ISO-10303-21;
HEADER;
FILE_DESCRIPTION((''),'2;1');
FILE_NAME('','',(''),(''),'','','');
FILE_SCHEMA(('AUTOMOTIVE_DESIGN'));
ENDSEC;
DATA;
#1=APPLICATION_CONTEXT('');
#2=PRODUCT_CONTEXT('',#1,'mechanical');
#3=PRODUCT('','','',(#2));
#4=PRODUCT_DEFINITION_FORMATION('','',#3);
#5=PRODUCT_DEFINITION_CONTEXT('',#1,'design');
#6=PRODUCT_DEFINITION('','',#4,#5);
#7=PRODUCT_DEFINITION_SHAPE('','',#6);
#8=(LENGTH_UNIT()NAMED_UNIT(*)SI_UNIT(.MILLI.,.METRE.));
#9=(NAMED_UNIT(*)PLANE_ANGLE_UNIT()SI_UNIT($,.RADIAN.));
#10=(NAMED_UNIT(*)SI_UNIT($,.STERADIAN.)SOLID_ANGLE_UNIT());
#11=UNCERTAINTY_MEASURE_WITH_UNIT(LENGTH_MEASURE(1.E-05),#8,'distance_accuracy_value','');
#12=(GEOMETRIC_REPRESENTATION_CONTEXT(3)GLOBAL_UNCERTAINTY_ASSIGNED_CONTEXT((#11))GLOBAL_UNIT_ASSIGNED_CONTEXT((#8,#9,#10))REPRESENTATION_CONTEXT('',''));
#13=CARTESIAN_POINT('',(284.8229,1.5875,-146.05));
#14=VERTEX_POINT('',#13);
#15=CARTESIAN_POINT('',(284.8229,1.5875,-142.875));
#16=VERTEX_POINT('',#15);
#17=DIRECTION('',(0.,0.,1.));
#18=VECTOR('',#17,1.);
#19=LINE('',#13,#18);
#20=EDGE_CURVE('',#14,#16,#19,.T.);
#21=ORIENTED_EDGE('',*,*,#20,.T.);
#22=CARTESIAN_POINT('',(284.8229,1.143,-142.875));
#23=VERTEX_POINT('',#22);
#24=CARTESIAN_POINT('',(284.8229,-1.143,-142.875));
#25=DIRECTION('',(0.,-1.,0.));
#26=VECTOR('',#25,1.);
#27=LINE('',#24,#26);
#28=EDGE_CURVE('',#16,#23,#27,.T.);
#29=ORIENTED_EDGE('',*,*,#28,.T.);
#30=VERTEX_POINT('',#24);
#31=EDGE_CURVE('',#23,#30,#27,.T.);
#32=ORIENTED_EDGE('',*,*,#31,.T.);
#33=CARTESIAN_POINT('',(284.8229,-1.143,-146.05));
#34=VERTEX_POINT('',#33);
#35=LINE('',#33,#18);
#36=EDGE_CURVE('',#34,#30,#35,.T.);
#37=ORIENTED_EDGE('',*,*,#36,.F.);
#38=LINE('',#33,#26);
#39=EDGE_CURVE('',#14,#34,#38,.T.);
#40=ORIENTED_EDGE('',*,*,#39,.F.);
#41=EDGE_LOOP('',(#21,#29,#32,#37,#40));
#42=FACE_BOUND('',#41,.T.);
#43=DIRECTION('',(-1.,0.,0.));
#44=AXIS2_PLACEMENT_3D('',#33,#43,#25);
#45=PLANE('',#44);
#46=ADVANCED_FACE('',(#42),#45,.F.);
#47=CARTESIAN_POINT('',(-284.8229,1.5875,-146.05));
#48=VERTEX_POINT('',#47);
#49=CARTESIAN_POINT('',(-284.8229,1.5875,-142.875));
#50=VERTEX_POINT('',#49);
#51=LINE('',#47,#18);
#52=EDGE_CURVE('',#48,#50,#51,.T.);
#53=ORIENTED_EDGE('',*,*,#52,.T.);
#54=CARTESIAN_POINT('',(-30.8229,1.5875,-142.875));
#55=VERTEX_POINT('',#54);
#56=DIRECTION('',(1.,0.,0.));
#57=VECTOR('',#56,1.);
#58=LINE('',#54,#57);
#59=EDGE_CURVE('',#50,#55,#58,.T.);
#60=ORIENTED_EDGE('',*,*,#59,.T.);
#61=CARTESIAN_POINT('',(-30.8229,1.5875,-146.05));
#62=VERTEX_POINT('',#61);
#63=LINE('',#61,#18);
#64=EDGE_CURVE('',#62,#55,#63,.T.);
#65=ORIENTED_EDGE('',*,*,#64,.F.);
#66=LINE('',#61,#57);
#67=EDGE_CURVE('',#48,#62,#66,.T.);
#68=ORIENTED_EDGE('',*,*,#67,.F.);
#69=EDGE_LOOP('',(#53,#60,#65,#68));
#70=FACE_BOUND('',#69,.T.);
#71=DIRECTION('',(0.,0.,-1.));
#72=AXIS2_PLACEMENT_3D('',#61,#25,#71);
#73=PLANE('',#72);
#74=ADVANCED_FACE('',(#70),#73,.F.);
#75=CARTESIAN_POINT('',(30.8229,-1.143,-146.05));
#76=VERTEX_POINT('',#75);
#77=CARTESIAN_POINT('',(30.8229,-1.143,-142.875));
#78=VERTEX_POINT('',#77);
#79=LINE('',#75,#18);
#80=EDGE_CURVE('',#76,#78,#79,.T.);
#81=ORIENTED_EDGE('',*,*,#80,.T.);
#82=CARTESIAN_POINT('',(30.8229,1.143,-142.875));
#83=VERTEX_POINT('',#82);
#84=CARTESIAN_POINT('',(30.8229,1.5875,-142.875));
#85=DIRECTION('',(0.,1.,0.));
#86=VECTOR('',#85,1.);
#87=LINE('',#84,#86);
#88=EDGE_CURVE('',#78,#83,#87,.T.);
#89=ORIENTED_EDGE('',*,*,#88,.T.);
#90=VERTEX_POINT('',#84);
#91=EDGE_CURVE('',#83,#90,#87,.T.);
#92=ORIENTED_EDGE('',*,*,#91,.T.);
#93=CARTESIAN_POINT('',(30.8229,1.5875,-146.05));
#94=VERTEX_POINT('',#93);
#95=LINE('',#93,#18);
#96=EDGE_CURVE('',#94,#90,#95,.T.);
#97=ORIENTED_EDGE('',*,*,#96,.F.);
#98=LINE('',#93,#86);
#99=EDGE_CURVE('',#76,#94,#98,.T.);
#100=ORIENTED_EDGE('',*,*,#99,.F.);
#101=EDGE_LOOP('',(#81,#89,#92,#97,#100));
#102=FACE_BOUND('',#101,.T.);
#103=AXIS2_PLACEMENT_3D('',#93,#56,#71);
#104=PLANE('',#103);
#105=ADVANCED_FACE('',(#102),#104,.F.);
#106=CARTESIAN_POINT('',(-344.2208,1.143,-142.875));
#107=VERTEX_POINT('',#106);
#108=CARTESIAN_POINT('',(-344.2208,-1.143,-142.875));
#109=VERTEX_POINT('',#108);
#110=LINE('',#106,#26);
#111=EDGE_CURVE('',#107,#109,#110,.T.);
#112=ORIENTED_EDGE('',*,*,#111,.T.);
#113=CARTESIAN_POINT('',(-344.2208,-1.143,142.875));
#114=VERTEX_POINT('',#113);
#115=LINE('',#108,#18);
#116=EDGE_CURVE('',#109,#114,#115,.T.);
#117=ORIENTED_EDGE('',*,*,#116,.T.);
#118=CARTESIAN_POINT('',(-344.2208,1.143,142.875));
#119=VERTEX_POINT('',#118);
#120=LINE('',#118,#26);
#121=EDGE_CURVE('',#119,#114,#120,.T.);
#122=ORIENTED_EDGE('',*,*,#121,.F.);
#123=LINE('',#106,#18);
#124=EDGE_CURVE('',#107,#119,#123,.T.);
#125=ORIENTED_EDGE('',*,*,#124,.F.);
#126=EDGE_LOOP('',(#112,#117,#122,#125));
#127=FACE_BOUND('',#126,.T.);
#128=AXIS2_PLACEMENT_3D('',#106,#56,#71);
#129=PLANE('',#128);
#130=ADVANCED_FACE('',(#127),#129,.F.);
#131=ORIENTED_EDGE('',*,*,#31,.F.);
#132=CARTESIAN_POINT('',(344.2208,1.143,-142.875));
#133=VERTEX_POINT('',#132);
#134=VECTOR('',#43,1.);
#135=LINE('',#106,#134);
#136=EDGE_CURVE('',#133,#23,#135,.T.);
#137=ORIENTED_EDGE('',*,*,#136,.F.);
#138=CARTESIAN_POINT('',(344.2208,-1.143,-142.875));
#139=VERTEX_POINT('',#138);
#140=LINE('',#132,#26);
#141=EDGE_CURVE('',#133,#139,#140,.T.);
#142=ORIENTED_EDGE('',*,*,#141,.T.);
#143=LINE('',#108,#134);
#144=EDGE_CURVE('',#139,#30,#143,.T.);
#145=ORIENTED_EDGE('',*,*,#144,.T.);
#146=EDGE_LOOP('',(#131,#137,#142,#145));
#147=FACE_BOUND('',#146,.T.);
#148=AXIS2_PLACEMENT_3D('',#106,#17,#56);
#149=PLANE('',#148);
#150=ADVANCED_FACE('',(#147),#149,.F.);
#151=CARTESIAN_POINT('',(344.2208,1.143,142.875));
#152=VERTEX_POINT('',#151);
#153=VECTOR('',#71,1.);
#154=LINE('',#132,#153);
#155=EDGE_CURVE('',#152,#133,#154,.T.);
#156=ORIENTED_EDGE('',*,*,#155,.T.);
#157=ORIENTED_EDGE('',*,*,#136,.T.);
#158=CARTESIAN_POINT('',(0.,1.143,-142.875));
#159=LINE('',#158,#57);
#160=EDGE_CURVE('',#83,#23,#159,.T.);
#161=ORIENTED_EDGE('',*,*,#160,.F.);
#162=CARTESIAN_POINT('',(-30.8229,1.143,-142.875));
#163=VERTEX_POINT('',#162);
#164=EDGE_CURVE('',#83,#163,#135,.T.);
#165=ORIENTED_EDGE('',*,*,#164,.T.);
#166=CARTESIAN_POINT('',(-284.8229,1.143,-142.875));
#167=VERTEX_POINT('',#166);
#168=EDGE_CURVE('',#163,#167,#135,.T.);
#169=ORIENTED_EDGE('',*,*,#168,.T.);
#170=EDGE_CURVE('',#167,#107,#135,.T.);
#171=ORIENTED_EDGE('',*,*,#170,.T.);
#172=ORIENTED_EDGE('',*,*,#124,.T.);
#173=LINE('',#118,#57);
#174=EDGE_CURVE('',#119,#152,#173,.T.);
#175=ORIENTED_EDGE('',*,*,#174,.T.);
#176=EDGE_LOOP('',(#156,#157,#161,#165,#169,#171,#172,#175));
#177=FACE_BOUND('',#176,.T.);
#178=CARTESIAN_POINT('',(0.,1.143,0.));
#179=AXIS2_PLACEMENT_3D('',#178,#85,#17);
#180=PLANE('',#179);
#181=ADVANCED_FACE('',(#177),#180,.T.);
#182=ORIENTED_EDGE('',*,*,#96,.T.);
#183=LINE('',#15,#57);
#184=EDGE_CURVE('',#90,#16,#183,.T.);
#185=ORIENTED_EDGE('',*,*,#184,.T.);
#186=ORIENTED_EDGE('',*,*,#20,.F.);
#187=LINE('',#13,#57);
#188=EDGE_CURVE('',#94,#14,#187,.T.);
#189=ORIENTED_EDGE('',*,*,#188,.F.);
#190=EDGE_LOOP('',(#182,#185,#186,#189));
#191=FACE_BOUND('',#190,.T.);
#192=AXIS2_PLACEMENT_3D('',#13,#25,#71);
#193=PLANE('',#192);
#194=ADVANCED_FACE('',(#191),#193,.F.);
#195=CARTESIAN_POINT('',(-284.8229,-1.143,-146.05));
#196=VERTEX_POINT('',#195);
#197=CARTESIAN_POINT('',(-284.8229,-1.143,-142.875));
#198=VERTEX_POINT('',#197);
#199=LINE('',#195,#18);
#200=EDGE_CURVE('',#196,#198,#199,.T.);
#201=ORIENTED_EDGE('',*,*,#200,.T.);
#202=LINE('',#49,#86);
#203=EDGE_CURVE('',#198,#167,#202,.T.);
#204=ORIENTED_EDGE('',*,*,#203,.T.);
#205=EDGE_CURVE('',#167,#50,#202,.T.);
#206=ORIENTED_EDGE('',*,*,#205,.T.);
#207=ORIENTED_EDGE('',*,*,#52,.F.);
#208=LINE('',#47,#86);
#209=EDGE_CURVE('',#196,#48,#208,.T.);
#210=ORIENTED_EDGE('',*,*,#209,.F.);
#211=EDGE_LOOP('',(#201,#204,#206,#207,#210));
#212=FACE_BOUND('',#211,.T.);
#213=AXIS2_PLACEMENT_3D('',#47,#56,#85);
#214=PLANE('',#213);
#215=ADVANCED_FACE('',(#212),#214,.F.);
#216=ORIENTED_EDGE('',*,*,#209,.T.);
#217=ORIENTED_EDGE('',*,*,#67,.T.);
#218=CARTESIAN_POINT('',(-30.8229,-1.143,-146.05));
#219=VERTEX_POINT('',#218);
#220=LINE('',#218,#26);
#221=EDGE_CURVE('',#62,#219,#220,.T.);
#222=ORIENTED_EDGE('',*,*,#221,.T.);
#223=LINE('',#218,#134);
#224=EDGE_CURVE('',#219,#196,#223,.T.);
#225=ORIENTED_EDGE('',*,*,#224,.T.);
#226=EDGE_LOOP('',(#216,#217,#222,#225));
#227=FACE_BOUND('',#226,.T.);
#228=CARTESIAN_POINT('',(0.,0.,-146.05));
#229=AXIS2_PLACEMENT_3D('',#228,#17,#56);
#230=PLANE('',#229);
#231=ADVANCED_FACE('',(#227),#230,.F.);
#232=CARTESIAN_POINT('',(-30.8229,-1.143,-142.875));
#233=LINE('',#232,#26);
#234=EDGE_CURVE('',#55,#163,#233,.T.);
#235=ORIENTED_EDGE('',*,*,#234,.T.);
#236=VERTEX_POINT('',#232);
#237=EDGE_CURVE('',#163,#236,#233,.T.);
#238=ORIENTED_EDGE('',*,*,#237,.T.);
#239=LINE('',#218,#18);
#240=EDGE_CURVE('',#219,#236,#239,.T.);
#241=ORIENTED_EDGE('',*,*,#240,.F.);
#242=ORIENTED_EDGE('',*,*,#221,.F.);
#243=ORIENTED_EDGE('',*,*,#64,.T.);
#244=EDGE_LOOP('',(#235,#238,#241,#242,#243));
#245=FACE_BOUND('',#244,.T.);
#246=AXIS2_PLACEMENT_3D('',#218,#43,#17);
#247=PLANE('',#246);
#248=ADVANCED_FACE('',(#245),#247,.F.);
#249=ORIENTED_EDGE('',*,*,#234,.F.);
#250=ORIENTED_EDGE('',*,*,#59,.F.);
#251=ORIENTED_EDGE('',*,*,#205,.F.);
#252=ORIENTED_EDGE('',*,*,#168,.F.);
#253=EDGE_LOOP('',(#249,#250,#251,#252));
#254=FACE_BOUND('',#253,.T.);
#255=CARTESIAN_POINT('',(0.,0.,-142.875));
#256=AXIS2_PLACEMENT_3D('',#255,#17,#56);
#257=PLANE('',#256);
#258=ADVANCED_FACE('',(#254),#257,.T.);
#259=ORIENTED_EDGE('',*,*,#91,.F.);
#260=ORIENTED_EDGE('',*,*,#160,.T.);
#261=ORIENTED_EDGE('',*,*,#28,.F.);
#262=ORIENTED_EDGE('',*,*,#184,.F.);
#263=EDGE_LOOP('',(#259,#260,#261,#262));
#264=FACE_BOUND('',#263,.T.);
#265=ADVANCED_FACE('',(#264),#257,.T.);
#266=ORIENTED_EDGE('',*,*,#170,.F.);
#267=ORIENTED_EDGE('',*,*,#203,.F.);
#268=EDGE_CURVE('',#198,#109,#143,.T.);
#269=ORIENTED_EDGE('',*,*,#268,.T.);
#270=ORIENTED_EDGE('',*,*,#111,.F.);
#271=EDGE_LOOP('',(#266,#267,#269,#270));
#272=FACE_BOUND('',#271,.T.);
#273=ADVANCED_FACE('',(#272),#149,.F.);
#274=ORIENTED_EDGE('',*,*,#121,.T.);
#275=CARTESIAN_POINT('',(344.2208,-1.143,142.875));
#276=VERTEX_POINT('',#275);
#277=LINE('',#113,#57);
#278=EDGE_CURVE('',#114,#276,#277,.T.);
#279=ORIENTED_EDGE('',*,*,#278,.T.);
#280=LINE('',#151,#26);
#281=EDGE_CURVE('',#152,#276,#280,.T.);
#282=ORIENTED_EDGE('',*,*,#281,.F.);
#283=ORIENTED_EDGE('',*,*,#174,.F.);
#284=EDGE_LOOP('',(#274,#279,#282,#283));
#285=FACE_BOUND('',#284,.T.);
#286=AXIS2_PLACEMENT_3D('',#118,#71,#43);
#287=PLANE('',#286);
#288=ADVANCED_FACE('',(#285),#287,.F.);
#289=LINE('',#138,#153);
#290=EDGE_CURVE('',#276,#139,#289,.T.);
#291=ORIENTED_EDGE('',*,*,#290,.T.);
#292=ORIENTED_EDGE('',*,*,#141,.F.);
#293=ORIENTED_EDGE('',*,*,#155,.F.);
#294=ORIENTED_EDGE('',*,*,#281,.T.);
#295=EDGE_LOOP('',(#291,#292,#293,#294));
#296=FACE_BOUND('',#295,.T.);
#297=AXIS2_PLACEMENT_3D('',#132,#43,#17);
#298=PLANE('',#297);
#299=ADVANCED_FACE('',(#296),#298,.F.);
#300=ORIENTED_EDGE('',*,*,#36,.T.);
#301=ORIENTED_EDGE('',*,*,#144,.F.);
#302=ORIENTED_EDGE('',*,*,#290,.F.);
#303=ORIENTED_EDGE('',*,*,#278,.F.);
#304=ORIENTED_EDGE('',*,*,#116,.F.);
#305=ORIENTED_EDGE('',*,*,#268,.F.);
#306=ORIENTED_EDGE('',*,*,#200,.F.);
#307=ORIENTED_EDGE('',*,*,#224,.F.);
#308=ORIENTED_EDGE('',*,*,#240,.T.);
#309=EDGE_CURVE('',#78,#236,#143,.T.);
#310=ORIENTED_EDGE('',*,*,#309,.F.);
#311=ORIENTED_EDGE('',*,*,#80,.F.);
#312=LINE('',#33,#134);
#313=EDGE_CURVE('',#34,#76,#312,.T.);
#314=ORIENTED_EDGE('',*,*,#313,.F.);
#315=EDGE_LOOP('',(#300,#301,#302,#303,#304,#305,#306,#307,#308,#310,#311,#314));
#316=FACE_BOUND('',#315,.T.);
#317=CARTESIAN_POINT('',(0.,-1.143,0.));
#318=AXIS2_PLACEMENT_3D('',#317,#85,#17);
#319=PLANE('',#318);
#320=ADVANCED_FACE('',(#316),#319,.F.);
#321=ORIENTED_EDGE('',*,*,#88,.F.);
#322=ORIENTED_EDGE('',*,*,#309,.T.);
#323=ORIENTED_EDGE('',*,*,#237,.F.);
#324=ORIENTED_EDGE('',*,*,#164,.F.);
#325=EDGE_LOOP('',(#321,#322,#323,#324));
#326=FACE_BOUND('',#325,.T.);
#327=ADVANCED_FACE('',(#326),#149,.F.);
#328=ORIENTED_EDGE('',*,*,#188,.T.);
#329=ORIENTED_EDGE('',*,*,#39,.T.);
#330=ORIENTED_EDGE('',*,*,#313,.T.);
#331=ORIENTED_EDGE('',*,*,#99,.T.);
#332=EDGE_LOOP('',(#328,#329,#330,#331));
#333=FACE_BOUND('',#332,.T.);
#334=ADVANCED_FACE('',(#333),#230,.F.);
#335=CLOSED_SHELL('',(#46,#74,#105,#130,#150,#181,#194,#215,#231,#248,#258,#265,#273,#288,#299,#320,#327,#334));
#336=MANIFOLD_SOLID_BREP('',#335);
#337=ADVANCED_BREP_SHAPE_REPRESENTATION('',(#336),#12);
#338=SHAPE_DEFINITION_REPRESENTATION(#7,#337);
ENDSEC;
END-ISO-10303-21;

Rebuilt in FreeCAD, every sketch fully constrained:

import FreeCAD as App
import Part
import Sketcher

V = App.Vector
Q = App.Units.Quantity


def add_polygon(sketch, points):
    """Adds a closed chain of lines whose ends are joined by coincident constraints."""
    first, n = sketch.GeometryCount, len(points)
    for a, b in zip(points, points[1:] + points[:1]):
        sketch.addGeometry(Part.LineSegment(App.Vector(*a, 0), App.Vector(*b, 0)), False)
    for i in range(n):
        sketch.addConstraint(Sketcher.Constraint("Coincident", first + i, 2, first + (i + 1) % n, 1))

doc = App.newDocument("Part")
body = doc.addObject("PartDesign::Body", "Body")

# Sketch on XZ plane
sketch1 = body.newObject("Sketcher::SketchObject", "Sketch")
sketch1.AttachmentSupport = (doc.getObject("XZ_Plane"), [""])
sketch1.MapMode = "FlatFace"
add_polygon(sketch1, [(-344.2208, -142.875), (-344.2208, 142.875), (344.2208, 142.875), (344.2208, -142.875)])  # lines 0-3
sketch1.addConstraint([
    Sketcher.Constraint("Vertical", 0),
    Sketcher.Constraint("Horizontal", 1),
    Sketcher.Constraint("Vertical", 2),
    Sketcher.Constraint("Horizontal", 3),
    Sketcher.Constraint("Symmetric", 0, 2, 2, 2, -1, 1),
    Sketcher.Constraint("DistanceY", 0, 1, 0, 2, Q("11.25 in")),
    Sketcher.Constraint("DistanceX", 1, 1, 1, 2, Q("27.104 in")),
])
pad1 = body.newObject("PartDesign::Pad", "Pad")
pad1.Profile = sketch1
pad1.Length = Q("0.09 in")
pad1.Midplane = True

# Sketch on XY plane
sketch2 = body.newObject("Sketcher::SketchObject", "Sketch001")
sketch2.AttachmentSupport = (doc.getObject("XY_Plane"), [""])
sketch2.MapMode = "FlatFace"
sketch2.AttachmentOffset = App.Placement(V(0, 0, -5.625 * 25.4), App.Rotation())
add_polygon(sketch2, [(284.8229, 1.5875), (284.8229, -1.143), (30.8229, -1.143), (30.8229, 1.5875)])  # lines 0-3
add_polygon(sketch2, [(-30.8229, 1.5875), (-30.8229, -1.143), (-284.8229, -1.143), (-284.8229, 1.5875)])  # lines 4-7
sketch2.addConstraint([
    Sketcher.Constraint("Vertical", 0),
    Sketcher.Constraint("Horizontal", 1),
    Sketcher.Constraint("Vertical", 2),
    Sketcher.Constraint("Horizontal", 3),
    Sketcher.Constraint("Vertical", 4),
    Sketcher.Constraint("Horizontal", 5),
    Sketcher.Constraint("Vertical", 6),
    Sketcher.Constraint("Horizontal", 7),
    Sketcher.Constraint("Symmetric", 1, 2, 4, 2, -2),
    Sketcher.Constraint("Symmetric", 3, 2, 6, 2, -2),
    Sketcher.Constraint("DistanceX", 1, 2, 1, 1, Q("10 in")),
    Sketcher.Constraint("DistanceY", 0, 2, 0, 1, Q("0.1075 in")),
    Sketcher.Constraint("DistanceY", 0, 2, -1, 1, Q("0.045 in")),
    Sketcher.Constraint("DistanceX", 4, 2, 1, 2, Q("2.427 in")),
])
pad2 = body.newObject("PartDesign::Pad", "Pad001")
pad2.Profile = sketch2
pad2.Length = Q("0.125 in")
pad2.Reversed = True

doc.recompute()
